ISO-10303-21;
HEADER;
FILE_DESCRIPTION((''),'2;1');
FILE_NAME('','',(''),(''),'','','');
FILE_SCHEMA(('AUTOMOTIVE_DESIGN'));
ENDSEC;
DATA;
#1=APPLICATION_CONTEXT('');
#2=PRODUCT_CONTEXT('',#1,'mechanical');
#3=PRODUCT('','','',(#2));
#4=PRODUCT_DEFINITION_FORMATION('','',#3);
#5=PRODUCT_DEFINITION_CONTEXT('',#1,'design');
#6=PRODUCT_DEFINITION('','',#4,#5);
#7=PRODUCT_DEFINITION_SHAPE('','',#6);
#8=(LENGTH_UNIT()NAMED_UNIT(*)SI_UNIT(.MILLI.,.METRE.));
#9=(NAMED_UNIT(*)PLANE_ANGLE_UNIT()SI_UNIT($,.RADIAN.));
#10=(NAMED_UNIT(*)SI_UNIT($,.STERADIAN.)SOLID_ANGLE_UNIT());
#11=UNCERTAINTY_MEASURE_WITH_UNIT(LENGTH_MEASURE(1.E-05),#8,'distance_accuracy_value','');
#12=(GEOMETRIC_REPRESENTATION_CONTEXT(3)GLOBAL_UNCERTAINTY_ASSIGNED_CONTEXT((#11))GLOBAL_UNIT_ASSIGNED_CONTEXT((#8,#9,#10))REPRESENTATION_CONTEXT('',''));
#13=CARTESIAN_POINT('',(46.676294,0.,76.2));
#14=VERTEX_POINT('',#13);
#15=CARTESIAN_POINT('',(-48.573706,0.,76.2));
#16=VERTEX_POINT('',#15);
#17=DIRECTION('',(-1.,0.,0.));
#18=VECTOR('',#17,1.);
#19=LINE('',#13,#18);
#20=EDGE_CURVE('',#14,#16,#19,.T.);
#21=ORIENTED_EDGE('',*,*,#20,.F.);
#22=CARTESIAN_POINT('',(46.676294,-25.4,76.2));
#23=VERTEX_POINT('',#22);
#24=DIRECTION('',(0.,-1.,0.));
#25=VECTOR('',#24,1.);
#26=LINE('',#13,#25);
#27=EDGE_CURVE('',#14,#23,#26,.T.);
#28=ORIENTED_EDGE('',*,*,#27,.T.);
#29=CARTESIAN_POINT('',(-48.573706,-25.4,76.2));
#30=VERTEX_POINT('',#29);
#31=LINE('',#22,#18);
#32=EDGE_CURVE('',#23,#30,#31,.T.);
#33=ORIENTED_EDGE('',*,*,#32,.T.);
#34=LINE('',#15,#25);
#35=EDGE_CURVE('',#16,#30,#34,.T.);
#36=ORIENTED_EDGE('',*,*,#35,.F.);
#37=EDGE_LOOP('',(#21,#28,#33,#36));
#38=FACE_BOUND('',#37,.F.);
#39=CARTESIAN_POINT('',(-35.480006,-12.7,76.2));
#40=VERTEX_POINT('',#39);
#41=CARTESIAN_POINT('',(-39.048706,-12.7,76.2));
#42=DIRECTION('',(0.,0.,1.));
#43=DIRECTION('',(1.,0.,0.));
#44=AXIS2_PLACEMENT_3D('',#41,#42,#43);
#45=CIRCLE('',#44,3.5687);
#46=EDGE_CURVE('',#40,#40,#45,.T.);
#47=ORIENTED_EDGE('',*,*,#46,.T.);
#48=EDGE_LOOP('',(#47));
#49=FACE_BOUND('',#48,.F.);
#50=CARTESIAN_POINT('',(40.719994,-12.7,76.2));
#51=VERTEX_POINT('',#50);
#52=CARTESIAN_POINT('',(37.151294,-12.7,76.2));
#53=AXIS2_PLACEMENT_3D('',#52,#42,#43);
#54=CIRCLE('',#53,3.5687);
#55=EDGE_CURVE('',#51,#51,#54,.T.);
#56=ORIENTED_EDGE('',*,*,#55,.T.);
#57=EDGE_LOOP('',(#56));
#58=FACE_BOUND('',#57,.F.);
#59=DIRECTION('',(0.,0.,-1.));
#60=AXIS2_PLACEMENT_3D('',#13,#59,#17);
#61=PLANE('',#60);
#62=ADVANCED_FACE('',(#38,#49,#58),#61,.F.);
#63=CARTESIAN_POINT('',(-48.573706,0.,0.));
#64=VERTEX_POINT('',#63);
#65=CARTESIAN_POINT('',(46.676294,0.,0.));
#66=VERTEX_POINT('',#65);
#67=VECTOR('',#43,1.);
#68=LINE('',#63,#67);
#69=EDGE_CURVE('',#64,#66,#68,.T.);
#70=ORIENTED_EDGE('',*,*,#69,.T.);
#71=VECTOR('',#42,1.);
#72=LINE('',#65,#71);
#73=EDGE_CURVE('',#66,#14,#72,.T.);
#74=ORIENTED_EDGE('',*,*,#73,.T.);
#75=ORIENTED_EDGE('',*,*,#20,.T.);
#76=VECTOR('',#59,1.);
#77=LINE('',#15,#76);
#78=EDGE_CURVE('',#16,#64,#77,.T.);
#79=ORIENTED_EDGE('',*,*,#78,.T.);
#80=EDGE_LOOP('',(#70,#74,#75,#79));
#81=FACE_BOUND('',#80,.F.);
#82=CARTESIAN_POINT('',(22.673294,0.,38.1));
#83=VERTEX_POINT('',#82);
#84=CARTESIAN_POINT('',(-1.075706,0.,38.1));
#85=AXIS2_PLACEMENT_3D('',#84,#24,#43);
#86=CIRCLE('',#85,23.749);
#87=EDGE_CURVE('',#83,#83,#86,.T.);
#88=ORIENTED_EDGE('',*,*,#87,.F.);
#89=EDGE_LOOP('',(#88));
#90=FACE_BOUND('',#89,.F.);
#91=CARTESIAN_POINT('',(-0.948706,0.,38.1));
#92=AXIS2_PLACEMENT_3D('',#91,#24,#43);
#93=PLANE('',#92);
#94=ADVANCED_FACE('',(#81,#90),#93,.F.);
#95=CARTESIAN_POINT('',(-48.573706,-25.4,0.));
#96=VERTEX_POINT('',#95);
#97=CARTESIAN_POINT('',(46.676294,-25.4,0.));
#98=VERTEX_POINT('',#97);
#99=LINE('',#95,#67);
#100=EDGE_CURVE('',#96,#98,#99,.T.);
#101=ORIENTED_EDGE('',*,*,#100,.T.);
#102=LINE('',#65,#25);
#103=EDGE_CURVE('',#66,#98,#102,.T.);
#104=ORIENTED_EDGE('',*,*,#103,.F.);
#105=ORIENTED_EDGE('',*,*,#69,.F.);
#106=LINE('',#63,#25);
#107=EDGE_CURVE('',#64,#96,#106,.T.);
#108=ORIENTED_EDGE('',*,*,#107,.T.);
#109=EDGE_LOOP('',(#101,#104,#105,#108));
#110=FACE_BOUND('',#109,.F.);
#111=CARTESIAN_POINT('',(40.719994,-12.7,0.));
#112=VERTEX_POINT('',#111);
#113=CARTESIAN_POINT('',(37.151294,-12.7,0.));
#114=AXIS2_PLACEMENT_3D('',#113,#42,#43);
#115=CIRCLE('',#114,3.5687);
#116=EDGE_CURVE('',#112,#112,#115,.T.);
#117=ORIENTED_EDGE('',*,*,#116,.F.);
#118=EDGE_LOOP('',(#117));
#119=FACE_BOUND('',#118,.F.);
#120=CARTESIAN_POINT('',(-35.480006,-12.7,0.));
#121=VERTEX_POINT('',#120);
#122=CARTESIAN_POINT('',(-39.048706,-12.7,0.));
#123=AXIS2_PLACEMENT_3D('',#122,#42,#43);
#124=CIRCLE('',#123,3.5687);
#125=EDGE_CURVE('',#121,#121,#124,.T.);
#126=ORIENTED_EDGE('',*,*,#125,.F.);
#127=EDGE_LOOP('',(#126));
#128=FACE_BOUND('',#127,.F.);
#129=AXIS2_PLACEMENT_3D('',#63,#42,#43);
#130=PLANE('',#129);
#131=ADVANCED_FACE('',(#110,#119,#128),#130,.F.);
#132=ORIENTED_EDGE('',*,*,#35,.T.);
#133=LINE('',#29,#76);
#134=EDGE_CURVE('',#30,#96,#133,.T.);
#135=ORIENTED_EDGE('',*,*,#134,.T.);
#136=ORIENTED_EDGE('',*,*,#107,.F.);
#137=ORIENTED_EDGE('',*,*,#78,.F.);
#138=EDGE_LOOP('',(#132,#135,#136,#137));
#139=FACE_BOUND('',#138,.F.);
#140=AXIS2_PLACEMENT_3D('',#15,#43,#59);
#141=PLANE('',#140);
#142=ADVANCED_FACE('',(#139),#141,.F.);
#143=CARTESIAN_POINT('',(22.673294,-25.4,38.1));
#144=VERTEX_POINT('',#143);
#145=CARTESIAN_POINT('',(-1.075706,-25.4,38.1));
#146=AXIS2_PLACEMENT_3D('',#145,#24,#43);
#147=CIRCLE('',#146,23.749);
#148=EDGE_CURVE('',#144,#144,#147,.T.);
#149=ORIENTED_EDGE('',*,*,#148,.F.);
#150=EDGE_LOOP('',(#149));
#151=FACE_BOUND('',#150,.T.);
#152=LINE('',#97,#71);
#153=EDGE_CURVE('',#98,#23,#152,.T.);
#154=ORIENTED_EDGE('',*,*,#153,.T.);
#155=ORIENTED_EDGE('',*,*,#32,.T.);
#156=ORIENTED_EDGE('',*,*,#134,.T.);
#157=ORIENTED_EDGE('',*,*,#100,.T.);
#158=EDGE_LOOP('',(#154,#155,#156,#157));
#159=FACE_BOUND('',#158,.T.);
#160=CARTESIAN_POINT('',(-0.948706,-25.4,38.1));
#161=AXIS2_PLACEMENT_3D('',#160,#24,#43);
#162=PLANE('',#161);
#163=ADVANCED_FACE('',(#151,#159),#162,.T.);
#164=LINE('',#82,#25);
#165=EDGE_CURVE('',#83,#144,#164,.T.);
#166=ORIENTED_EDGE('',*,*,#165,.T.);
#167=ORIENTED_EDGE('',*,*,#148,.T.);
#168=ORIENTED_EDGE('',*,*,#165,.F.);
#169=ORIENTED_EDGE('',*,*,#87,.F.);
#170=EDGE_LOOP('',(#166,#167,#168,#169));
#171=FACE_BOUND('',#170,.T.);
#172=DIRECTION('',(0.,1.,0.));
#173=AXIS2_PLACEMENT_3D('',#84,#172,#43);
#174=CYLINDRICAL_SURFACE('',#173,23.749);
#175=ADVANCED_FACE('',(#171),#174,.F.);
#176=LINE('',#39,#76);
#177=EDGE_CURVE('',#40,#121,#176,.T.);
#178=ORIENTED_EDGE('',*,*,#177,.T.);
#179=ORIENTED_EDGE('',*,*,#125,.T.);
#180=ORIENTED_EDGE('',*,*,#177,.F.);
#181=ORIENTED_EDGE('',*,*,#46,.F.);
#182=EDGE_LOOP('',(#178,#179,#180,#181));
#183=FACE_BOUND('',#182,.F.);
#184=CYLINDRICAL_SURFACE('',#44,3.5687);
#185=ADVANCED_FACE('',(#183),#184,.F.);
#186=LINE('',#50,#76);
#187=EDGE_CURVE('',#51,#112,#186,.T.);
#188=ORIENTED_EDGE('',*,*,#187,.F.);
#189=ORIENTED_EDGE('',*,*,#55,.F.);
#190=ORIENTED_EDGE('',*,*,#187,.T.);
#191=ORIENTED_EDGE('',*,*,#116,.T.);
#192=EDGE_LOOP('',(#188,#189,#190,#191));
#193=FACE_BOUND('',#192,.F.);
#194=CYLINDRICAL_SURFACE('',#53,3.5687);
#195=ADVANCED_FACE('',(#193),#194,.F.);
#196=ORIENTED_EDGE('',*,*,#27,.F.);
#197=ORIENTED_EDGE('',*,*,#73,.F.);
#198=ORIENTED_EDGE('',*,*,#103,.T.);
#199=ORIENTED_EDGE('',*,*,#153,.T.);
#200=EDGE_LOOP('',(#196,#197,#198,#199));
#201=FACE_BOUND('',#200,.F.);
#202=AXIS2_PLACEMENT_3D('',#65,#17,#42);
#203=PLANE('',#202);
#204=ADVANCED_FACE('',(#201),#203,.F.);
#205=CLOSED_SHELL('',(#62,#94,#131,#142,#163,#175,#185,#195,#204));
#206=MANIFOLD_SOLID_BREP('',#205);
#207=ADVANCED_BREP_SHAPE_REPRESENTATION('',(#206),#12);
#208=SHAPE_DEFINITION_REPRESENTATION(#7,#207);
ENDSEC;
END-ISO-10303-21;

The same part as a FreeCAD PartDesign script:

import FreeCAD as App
import Part
import Sketcher
Q = App.Units.Quantity


def add_polygon(sketch, points):
    """Adds a closed chain of lines whose ends are joined by coincident constraints."""
    first, n = sketch.GeometryCount, len(points)
    for a, b in zip(points, points[1:] + points[:1]):
        sketch.addGeometry(Part.LineSegment(App.Vector(*a, 0), App.Vector(*b, 0)), False)
    for i in range(n):
        sketch.addConstraint(Sketcher.Constraint("Coincident", first + i, 2, first + (i + 1) % n, 1))

doc = App.newDocument("Part")
params = doc.addObject("Spreadsheet::Sheet", "Params")
for row, (alias, value) in enumerate([
    ("sketch1_diameter", "1.87 in"),
    ("sketch1_height", "3 in"),
    ("sketch1_width", "3.75 in"),
    ("pad1_length", "1 in"),
    ("sketch2_diameter", "0.281 in"),
    ("pocket1_length", "3 in"),
], start=1):
    params.set(f"A{row}", alias)
    params.set(f"B{row}", "=" + value)
    params.setAlias(f"B{row}", alias)

body = doc.addObject("PartDesign::Body", "Body")

# Sketch on XZ plane
sketch1 = body.newObject("Sketcher::SketchObject", "Sketch")
sketch1.AttachmentSupport = (doc.getObject("XZ_Plane"), [""])
sketch1.MapMode = "FlatFace"
add_polygon(sketch1, [(-49, 76), (-49, 0), (47, 0), (47, 76)])  # lines 0-3
sketch1.addGeometry(Part.Circle(App.Vector(-1, 38, 0), App.Vector(0, 0, 1), 24), False)  # 4
sketch1.addConstraint([
    Sketcher.Constraint("Vertical", 0),
    Sketcher.Constraint("Horizontal", 1),
    Sketcher.Constraint("Vertical", 2),
    Sketcher.Constraint("Horizontal", 3),
    Sketcher.Constraint("PointOnObject", 0, 2, -1),
    Sketcher.Constraint("Diameter", 4, Q("1.87 in")),
    Sketcher.Constraint("DistanceY", 0, 2, 0, 1, Q("3 in")),
    Sketcher.Constraint("DistanceX", 1, 1, 1, 2, Q("3.75 in")),
    Sketcher.Constraint("DistanceY", -1, 1, 4, 3, Q("1.5 in")),
    Sketcher.Constraint("DistanceX", 0, 2, 4, 3, Q("1.87 in")),
    Sketcher.Constraint("DistanceX", 4, 3, -1, 1, Q("1.075706 mm")),
])
sketch1.setExpression("Constraints[9]", "Params.sketch1_diameter")
sketch1.setExpression("Constraints[10]", "Params.sketch1_height")
sketch1.setExpression("Constraints[11]", "Params.sketch1_width")
pad1 = body.newObject("PartDesign::Pad", "Pad")
pad1.Profile = sketch1
pad1.setExpression("Length", "Params.pad1_length")

# Sketch on XY plane
sketch2 = body.newObject("Sketcher::SketchObject", "Sketch001")
sketch2.AttachmentSupport = (doc.getObject("XY_Plane"), [""])
sketch2.MapMode = "FlatFace"
sketch2.AttachmentOffset = App.Placement(App.Vector(0, 0, 3 * 25.4), App.Rotation())
sketch2.addGeometry([
    Part.Circle(App.Vector(-39, -12.7, 0), App.Vector(0, 0, 1), 3.6),
    Part.Circle(App.Vector(37.2, -12.7, 0), App.Vector(0, 0, 1), 3.6),
], False)
sketch2.addConstraint([
    Sketcher.Constraint("Equal", 0, 1),
    Sketcher.Constraint("Horizontal", 0, 3, 1, 3),
    Sketcher.Constraint("Diameter", 0, Q("0.281 in")),
    Sketcher.Constraint("DistanceX", 0, 3, 1, 3, Q("3 in")),
    Sketcher.Constraint("DistanceY", 0, 3, -1, 1, Q("0.5 in")),
    Sketcher.Constraint("DistanceX", 0, 3, -1, 1, Q("39.048706 mm")),
])
sketch2.setExpression("Constraints[2]", "Params.sketch2_diameter")
pocket1 = body.newObject("PartDesign::Pocket", "Pocket")
pocket1.Profile = sketch2
pocket1.setExpression("Length", "Params.pocket1_length")

doc.recompute()
